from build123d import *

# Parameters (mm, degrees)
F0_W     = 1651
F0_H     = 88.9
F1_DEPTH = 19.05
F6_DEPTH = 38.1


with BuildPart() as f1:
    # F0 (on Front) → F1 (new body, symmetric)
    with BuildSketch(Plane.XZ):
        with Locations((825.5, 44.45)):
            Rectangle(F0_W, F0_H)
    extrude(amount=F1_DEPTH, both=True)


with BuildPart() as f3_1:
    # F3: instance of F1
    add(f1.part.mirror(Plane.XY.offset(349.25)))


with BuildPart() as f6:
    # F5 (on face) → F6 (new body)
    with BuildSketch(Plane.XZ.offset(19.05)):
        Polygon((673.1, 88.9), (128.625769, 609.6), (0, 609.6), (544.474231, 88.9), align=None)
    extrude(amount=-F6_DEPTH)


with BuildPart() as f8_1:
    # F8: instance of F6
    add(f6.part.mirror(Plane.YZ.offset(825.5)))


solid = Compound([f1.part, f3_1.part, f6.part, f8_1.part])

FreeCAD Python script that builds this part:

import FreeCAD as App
import Part
import Sketcher
from FreeCAD import Vector
Q = App.Units.Quantity

doc = App.newDocument("Part")
body = doc.addObject("PartDesign::Body", "Body")

sketch1 = body.newObject("Sketcher::SketchObject", "Sketch")
sketch1.AttachmentSupport = (doc.getObject("XZ_Plane"), [""])
sketch1.MapMode = "FlatFace"
sketch1.addGeometry([
    Part.LineSegment(Vector(0, 89, 0), Vector(0, 0, 0)),
    Part.LineSegment(Vector(0, 0, 0), Vector(1651, 0, 0)),
    Part.LineSegment(Vector(1651, 0, 0), Vector(1651, 89, 0)),
    Part.LineSegment(Vector(1651, 89, 0), Vector(0, 89, 0)),
], False)
sketch1.addConstraint([
    Sketcher.Constraint("Coincident", 0, 2, 1, 1),
    Sketcher.Constraint("Coincident", 1, 2, 2, 1),
    Sketcher.Constraint("Coincident", 2, 2, 3, 1),
    Sketcher.Constraint("Coincident", 3, 2, 0, 1),
    Sketcher.Constraint("Vertical", 0),
    Sketcher.Constraint("Horizontal", 1),
    Sketcher.Constraint("Vertical", 2),
    Sketcher.Constraint("Horizontal", 3),
    Sketcher.Constraint("Coincident", 0, 2, -1, 1),
    Sketcher.Constraint("DistanceX", 1, 1, 1, 2, Q("65 in")),
    Sketcher.Constraint("DistanceY", 0, 2, 0, 1, Q("3.5 in")),
])
pad1 = body.newObject("PartDesign::Pad", "Pad")
pad1.Profile = sketch1
pad1.Length = Q("1.5 in")
pad1.Midplane = True
body2 = doc.addObject("PartDesign::Body", "Body001")
doc.recompute()

mirroring = doc.addObject("Part::Mirroring", "Mirroring")
mirroring.Source = body
mirroring.Base = Vector(0, 0, 349.25)
mirroring.Normal = Vector(0, 0, 1)
body2.BaseFeature = mirroring
doc.recompute()
body3 = doc.addObject("PartDesign::Body", "Body002")

sketch2 = body3.newObject("Sketcher::SketchObject", "Sketch001")
sketch2.AttachmentSupport = (doc.getObject("XZ_Plane002"), [""])
sketch2.MapMode = "FlatFace"
sketch2.AttachmentOffset = App.Placement(Vector(0, 0, 0.75 * 25.4), App.Rotation())
sketch2.addGeometry([
    Part.LineSegment(Vector(673, 89, 0), Vector(129, 610, 0)),
    Part.LineSegment(Vector(129, 610, 0), Vector(0, 610, 0)),
    Part.LineSegment(Vector(0, 610, 0), Vector(544, 89, 0)),
    Part.LineSegment(Vector(544, 89, 0), Vector(673, 89, 0)),
], False)
sketch2.addConstraint([
    Sketcher.Constraint("Coincident", 0, 2, 1, 1),
    Sketcher.Constraint("Coincident", 1, 2, 2, 1),
    Sketcher.Constraint("Coincident", 2, 2, 3, 1),
    Sketcher.Constraint("Coincident", 3, 2, 0, 1),
    Sketcher.Constraint("Horizontal", 1),
    Sketcher.Constraint("Horizontal", 3),
    Sketcher.Constraint("PointOnObject", 1, 2, -2),
    Sketcher.Constraint("Parallel", 0, 2),
    Sketcher.Constraint("DistanceY", -1, 1, 0, 2, Q("24 in")),
    Sketcher.Constraint("DistanceY", -1, 1, 2, 2, Q("3.5 in")),
    Sketcher.Constraint("DistanceX", -1, 1, 3, 2, Q("26.5 in")),
    Sketcher.Constraint("DistanceX", 1, 2, 1, 1, Q("128.625769 mm")),
])
pad2 = body3.newObject("PartDesign::Pad", "Pad001")
pad2.Profile = sketch2
pad2.Length = Q("1.5 in")
pad2.Reversed = True
body4 = doc.addObject("PartDesign::Body", "Body003")
doc.recompute()

mirroring2 = doc.addObject("Part::Mirroring", "Mirroring001")
mirroring2.Source = body3
mirroring2.Base = Vector(825.5, 0, 0)
mirroring2.Normal = Vector(1, 0, 0)
body4.BaseFeature = mirroring2
doc.recompute()
mirroring.Visibility = False
mirroring2.Visibility = False

doc.recompute()
